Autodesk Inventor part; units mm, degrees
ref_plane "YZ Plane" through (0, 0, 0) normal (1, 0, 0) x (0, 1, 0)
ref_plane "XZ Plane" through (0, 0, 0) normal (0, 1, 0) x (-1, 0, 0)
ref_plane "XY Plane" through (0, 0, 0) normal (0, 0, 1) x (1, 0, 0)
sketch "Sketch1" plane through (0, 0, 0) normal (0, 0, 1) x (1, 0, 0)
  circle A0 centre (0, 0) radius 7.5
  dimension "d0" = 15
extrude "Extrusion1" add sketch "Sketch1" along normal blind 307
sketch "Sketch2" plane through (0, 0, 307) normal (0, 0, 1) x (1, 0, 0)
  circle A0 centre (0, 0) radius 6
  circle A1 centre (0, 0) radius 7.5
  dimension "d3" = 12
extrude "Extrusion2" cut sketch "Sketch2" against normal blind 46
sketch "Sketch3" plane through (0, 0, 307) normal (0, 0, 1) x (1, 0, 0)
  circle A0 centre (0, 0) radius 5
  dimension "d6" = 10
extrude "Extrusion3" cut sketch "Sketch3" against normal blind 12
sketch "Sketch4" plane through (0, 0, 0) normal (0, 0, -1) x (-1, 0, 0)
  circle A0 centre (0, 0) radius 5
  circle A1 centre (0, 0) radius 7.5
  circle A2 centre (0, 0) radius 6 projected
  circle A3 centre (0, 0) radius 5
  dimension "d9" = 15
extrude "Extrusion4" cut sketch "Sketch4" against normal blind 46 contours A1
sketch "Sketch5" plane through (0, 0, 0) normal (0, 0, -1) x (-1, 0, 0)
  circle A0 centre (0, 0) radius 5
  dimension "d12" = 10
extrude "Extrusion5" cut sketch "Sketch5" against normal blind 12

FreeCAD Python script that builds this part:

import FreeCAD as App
import Part
import Sketcher
Q = App.Units.Quantity

doc = App.newDocument("Part")
body = doc.addObject("PartDesign::Body", "Body")

sketch1 = doc.addObject("Sketcher::SketchObject", "Sketch")
body.addObject(sketch1)
sketch1.AttachmentSupport = (doc.XY_Plane, [""])
sketch1.MapMode = "FlatFace"
sketch1.addGeometry(Part.Circle(App.Vector(0, 0, 0), App.Vector(0, 0, 1), 7.5), False)
sketch1.addConstraint([
    Sketcher.Constraint("Coincident", 0, 3, -1, 1),
    Sketcher.Constraint("Diameter", 0, Q("15 mm")),
])
pad1 = doc.addObject("PartDesign::Pad", "Pad")
body.addObject(pad1)
pad1.Profile = sketch1
pad1.Length = 307

sketch2 = doc.addObject("Sketcher::SketchObject", "Sketch001")
body.addObject(sketch2)
sketch2.AttachmentSupport = (doc.XY_Plane, [""])
sketch2.MapMode = "FlatFace"
sketch2.AttachmentOffset = App.Placement(App.Vector(0, 0, 307), App.Rotation())
sketch2.addGeometry([
    Part.Circle(App.Vector(0, 0, 0), App.Vector(0, 0, 1), 7.5),
    Part.Circle(App.Vector(0, 0, 0), App.Vector(0, 0, 1), 6),
], False)
sketch2.addConstraint([
    Sketcher.Constraint("Coincident", 0, 3, -1, 1),
    Sketcher.Constraint("Coincident", 1, 3, -1, 1),
    Sketcher.Constraint("Diameter", 1, Q("12 mm")),
    Sketcher.Constraint("Diameter", 0, Q("15 mm")),
])
pocket1 = doc.addObject("PartDesign::Pocket", "Pocket")
body.addObject(pocket1)
pocket1.Profile = sketch2
pocket1.Length = 46

sketch3 = doc.addObject("Sketcher::SketchObject", "Sketch002")
body.addObject(sketch3)
sketch3.AttachmentSupport = (doc.XY_Plane, [""])
sketch3.MapMode = "FlatFace"
sketch3.AttachmentOffset = App.Placement(App.Vector(0, 0, 307), App.Rotation())
sketch3.addGeometry(Part.Circle(App.Vector(0, 0, 0), App.Vector(0, 0, 1), 5), False)
sketch3.addConstraint([
    Sketcher.Constraint("Coincident", 0, 3, -1, 1),
    Sketcher.Constraint("Diameter", 0, Q("10 mm")),
])
pocket2 = doc.addObject("PartDesign::Pocket", "Pocket001")
body.addObject(pocket2)
pocket2.Profile = sketch3
pocket2.Length = 12

sketch4 = doc.addObject("Sketcher::SketchObject", "Sketch003")
body.addObject(sketch4)
sketch4.AttachmentSupport = (doc.XY_Plane, [""])
sketch4.MapMode = "FlatFace"
sketch4.addGeometry([
    Part.Circle(App.Vector(0, 0, 0), App.Vector(0, 0, 1), 7.5),
    Part.Circle(App.Vector(0, 0, 0), App.Vector(0, 0, 1), 6),
], False)
sketch4.addConstraint([
    Sketcher.Constraint("Coincident", 0, 3, -1, 1),
    Sketcher.Constraint("Coincident", 1, 3, -1, 1),
    Sketcher.Constraint("Diameter", 0, Q("15 mm")),
    Sketcher.Constraint("Diameter", 1, Q("12 mm")),
])
pocket3 = doc.addObject("PartDesign::Pocket", "Pocket002")
body.addObject(pocket3)
pocket3.Profile = sketch4
pocket3.Length = 46
pocket3.Reversed = True

sketch5 = doc.addObject("Sketcher::SketchObject", "Sketch004")
body.addObject(sketch5)
sketch5.AttachmentSupport = (doc.XY_Plane, [""])
sketch5.MapMode = "FlatFace"
sketch5.addGeometry(Part.Circle(App.Vector(0, 0, 0), App.Vector(0, 0, 1), 5), False)
sketch5.addConstraint([
    Sketcher.Constraint("Coincident", 0, 3, -1, 1),
    Sketcher.Constraint("Diameter", 0, Q("10 mm")),
])
pocket4 = doc.addObject("PartDesign::Pocket", "Pocket003")
body.addObject(pocket4)
pocket4.Profile = sketch5
pocket4.Length = 12
pocket4.Reversed = True

doc.recompute()
